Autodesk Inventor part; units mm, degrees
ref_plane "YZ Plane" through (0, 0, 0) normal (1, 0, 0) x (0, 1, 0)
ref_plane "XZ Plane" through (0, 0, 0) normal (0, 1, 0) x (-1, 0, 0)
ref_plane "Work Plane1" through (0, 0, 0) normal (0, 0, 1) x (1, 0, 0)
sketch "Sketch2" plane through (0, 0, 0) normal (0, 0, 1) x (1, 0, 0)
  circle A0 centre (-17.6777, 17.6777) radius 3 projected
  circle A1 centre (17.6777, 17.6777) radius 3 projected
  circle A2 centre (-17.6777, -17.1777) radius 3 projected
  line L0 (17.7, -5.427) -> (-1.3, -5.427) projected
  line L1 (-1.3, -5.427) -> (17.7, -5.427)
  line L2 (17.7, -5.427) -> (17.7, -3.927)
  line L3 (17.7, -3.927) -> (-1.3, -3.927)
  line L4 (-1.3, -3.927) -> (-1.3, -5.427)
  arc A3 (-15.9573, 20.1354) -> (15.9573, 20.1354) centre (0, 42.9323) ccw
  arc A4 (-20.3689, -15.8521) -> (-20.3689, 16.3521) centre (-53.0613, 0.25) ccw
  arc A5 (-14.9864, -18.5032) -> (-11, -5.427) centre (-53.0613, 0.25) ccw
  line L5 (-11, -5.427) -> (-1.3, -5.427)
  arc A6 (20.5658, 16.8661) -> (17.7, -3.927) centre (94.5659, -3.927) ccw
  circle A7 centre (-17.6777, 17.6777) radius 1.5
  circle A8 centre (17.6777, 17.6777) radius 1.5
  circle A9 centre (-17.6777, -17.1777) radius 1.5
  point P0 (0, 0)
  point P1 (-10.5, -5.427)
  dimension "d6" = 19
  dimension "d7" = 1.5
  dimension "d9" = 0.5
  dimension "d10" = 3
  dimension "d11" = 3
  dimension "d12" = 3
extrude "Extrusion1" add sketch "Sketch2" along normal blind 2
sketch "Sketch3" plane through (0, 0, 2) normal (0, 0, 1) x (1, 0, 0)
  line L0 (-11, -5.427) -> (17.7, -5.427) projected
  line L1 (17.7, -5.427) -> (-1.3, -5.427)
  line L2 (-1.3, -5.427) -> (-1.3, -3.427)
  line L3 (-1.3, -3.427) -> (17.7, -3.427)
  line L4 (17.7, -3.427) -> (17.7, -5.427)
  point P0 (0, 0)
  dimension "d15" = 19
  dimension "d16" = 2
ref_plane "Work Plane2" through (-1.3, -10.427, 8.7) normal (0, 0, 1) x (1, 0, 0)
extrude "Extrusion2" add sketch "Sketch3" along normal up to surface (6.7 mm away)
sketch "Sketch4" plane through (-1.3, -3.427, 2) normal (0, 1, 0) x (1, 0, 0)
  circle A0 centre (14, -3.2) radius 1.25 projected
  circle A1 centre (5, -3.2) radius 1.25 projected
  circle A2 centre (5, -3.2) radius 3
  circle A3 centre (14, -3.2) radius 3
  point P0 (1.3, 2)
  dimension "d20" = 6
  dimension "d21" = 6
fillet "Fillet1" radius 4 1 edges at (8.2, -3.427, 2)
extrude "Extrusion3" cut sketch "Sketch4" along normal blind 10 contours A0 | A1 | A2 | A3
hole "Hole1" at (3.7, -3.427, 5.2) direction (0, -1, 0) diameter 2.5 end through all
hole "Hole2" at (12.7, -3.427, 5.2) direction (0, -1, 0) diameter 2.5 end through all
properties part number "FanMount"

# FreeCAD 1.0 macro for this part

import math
import FreeCAD as App
import Part
import Sketcher

V = App.Vector
Q = App.Units.Quantity


def edges_at(feature, points):
    """Names of the edges that pass closest to the given points."""
    edges = feature.Shape.Edges
    near = lambda p: min(range(len(edges)), key=lambda i: edges[i].distToShape(Part.Vertex(*p))[0])
    return sorted({f"Edge{near(p) + 1}" for p in points})


def add_polygon(sketch, points):
    """Adds a closed chain of lines whose ends are joined by coincident constraints."""
    first, n = sketch.GeometryCount, len(points)
    for a, b in zip(points, points[1:] + points[:1]):
        sketch.addGeometry(Part.LineSegment(App.Vector(*a, 0), App.Vector(*b, 0)), False)
    for i in range(n):
        sketch.addConstraint(Sketcher.Constraint("Coincident", first + i, 2, first + (i + 1) % n, 1))

doc = App.newDocument("Part")
body = doc.addObject("PartDesign::Body", "Body")

# Sketch on XY plane
sketch1 = body.newObject("Sketcher::SketchObject", "Sketch")
sketch1.AttachmentSupport = (doc.getObject("XY_Plane"), [""])
sketch1.MapMode = "FlatFace"
sketch1.addGeometry([
    Part.ArcOfCircle(Part.Circle(V(-17.6777, 17.6777, 0), V(0, 0, 1), 3), math.radians(55.007823), math.radians(206.223399)),  # 0
    Part.ArcOfCircle(Part.Circle(V(-53.0613, 0.25, 0), V(0, 0, 1), 36.442704), math.radians(-26.221788), math.radians(26.221788)),  # 1
    Part.ArcOfCircle(Part.Circle(V(-17.6777, -17.1777, 0), V(0, 0, 1), 3), math.radians(153.776601), math.radians(333.779158)),  # 2
    Part.ArcOfCircle(Part.Circle(V(-53.0613, 0.25, 0), V(0, 0, 1), 42.442673), math.radians(-26.221835), math.radians(-7.686741)),  # 3
    Part.LineSegment(V(-11, -5.427, 0), V(17.7, -5.427, 0)),  # 4
    Part.LineSegment(V(17.7, -5.427, 0), V(17.7, -3.927, 0)),  # 5
    Part.ArcOfCircle(Part.Circle(V(94.5659, -3.927, 0), V(0, 0, 1), 76.865908), math.radians(164.305303), math.radians(180)),  # 6
    Part.ArcOfCircle(Part.Circle(V(17.6777, 17.6777, 0), V(0, 0, 1), 3), math.radians(-15.69617), math.radians(124.992177)),  # 7
    Part.ArcOfCircle(Part.Circle(V(0, 42.9323, 0), V(0, 0, 1), 27.826859), math.radians(-124.991126), math.radians(-55.008874)),  # 8
    Part.Circle(V(-17.6777, 17.6777, 0), V(0, 0, 1), 1.5),  # 9
    Part.Circle(V(17.6777, 17.6777, 0), V(0, 0, 1), 1.5),  # 10
    Part.Circle(V(-17.6777, -17.1777, 0), V(0, 0, 1), 1.5),  # 11
], False)
sketch1.addConstraint([
    Sketcher.Constraint("Tangent", 0, 2, 1, 2),
    Sketcher.Constraint("Tangent", 1, 1, 2, 1),
    Sketcher.Constraint("Tangent", 2, 2, 3, 1),
    Sketcher.Constraint("Coincident", 3, 2, 4, 1),
    Sketcher.Constraint("Coincident", 4, 2, 5, 1),
    Sketcher.Constraint("Tangent", 5, 2, 6, 2),
    Sketcher.Constraint("Tangent", 6, 1, 7, 1),
    Sketcher.Constraint("Tangent", 7, 2, 8, 2),
    Sketcher.Constraint("Tangent", 8, 1, 0, 1),
    Sketcher.Constraint("Horizontal", 4),
    Sketcher.Constraint("Vertical", 5),
    Sketcher.Constraint("Coincident", 3, 3, 1, 3),
    Sketcher.Constraint("Coincident", 9, 3, 0, 3),
    Sketcher.Constraint("Coincident", 10, 3, 7, 3),
    Sketcher.Constraint("Coincident", 11, 3, 2, 3),
    Sketcher.Constraint("Equal", 0, 2),
    Sketcher.Constraint("Equal", 2, 7),
    Sketcher.Constraint("Equal", 9, 10),
    Sketcher.Constraint("Equal", 10, 11),
    Sketcher.Constraint("Symmetric", 0, 3, 7, 3, -2),
    Sketcher.Constraint("Vertical", 0, 3, 2, 3),
    Sketcher.Constraint("Diameter", 9, Q("3 mm")),
    Sketcher.Constraint("Radius", 0, Q("3 mm")),
    Sketcher.Constraint("DistanceY", 5, 1, 5, 2, Q("1.5 mm")),
    Sketcher.Constraint("DistanceX", 4, 1, 4, 2, Q("28.7 mm")),
    Sketcher.Constraint("DistanceX", 3, 2, -1, 1, Q("11 mm")),
    Sketcher.Constraint("Radius", 6, Q("76.866 mm")),
    Sketcher.Constraint("Radius", 1, Q("36.4427 mm")),
    Sketcher.Constraint("Radius", 8, Q("27.8269 mm")),
    Sketcher.Constraint("DistanceY", -1, 1, 1, 3, Q("0.25 mm")),
    Sketcher.Constraint("DistanceY", 2, 3, 8, 3, Q("60.11 mm")),
])
pad1 = body.newObject("PartDesign::Pad", "Pad")
pad1.Profile = sketch1
pad1.Length = 2

# Sketch on XY plane
sketch2 = body.newObject("Sketcher::SketchObject", "Sketch001")
sketch2.AttachmentSupport = (doc.getObject("XY_Plane"), [""])
sketch2.MapMode = "FlatFace"
sketch2.AttachmentOffset = App.Placement(V(0, 0, 2), App.Rotation())
add_polygon(sketch2, [(-1.3, -3.427), (-1.3, -5.427), (17.7, -5.427), (17.7, -3.427)])  # lines 0-3
sketch2.addConstraint([
    Sketcher.Constraint("Vertical", 0),
    Sketcher.Constraint("Horizontal", 1),
    Sketcher.Constraint("Vertical", 2),
    Sketcher.Constraint("Horizontal", 3),
    Sketcher.Constraint("DistanceX", 1, 1, 1, 2, Q("19 mm")),
    Sketcher.Constraint("DistanceY", 0, 2, 0, 1, Q("2 mm")),
    Sketcher.Constraint("DistanceX", 0, 2, -1, 1, Q("1.3 mm")),
    Sketcher.Constraint("DistanceY", 0, 2, -1, 1, Q("5.427 mm")),
])
pad2 = body.newObject("PartDesign::Pad", "Pad001")
pad2.Profile = sketch2
pad2.Length = 6.7
doc.recompute()

fillet = body.newObject("PartDesign::Fillet", "Fillet")
fillet.Base = (pad2, edges_at(pad2, [(8.2, -3.427, 2)]))
fillet.Radius = 4

# Sketch on XZ plane
sketch3 = body.newObject("Sketcher::SketchObject", "Sketch002")
sketch3.AttachmentSupport = (doc.getObject("XZ_Plane"), [""])
sketch3.MapMode = "FlatFace"
sketch3.AttachmentOffset = App.Placement(V(0, 0, 3.427), App.Rotation())
sketch3.addGeometry([
    Part.Circle(V(12.7, 5.2, 0), V(0, 0, 1), 3),
    Part.Circle(V(3.7, 5.2, 0), V(0, 0, 1), 3),
], False)
sketch3.addConstraint([
    Sketcher.Constraint("Equal", 0, 1),
    Sketcher.Constraint("Horizontal", 0, 3, 1, 3),
    Sketcher.Constraint("Diameter", 0, Q("6 mm")),
    Sketcher.Constraint("DistanceX", 1, 3, 0, 3, Q("9 mm")),
    Sketcher.Constraint("DistanceX", -1, 1, 0, 3, Q("12.7 mm")),
    Sketcher.Constraint("DistanceY", -1, 1, 0, 3, Q("5.2 mm")),
])
pocket1 = body.newObject("PartDesign::Pocket", "Pocket")
pocket1.Profile = sketch3
pocket1.Length = 10

# Sketch on XZ plane
sketch4 = body.newObject("Sketcher::SketchObject", "Sketch003")
sketch4.AttachmentSupport = (doc.getObject("XZ_Plane"), [""])
sketch4.MapMode = "FlatFace"
sketch4.AttachmentOffset = App.Placement(V(0, 0, 3.427), App.Rotation())
sketch4.addGeometry(Part.Circle(V(3.7, 5.2, 0), V(0, 0, 1), 1.25), False)
sketch4.addConstraint([
    Sketcher.Constraint("Diameter", 0, Q("2.5 mm")),
    Sketcher.Constraint("DistanceX", -1, 1, 0, 3, Q("3.7 mm")),
    Sketcher.Constraint("DistanceY", -1, 1, 0, 3, Q("5.2 mm")),
])
doc.recompute()
hole = body.newObject("PartDesign::Hole", "Hole")
hole.Profile = sketch4
hole.ThreadType = "None"
hole.Diameter = 2.5
hole.DepthType = "ThroughAll"
hole.Reversed = True

# Sketch on XZ plane
sketch5 = body.newObject("Sketcher::SketchObject", "Sketch004")
sketch5.AttachmentSupport = (doc.getObject("XZ_Plane"), [""])
sketch5.MapMode = "FlatFace"
sketch5.AttachmentOffset = App.Placement(V(0, 0, 3.427), App.Rotation())
sketch5.addGeometry(Part.Circle(V(12.7, 5.2, 0), V(0, 0, 1), 1.25), False)
sketch5.addConstraint([
    Sketcher.Constraint("Diameter", 0, Q("2.5 mm")),
    Sketcher.Constraint("DistanceX", -1, 1, 0, 3, Q("12.7 mm")),
    Sketcher.Constraint("DistanceY", -1, 1, 0, 3, Q("5.2 mm")),
])
doc.recompute()
hole2 = body.newObject("PartDesign::Hole", "Hole001")
hole2.Profile = sketch5
hole2.ThreadType = "None"
hole2.Diameter = 2.5
hole2.DepthType = "ThroughAll"
hole2.Reversed = True

doc.recompute()
